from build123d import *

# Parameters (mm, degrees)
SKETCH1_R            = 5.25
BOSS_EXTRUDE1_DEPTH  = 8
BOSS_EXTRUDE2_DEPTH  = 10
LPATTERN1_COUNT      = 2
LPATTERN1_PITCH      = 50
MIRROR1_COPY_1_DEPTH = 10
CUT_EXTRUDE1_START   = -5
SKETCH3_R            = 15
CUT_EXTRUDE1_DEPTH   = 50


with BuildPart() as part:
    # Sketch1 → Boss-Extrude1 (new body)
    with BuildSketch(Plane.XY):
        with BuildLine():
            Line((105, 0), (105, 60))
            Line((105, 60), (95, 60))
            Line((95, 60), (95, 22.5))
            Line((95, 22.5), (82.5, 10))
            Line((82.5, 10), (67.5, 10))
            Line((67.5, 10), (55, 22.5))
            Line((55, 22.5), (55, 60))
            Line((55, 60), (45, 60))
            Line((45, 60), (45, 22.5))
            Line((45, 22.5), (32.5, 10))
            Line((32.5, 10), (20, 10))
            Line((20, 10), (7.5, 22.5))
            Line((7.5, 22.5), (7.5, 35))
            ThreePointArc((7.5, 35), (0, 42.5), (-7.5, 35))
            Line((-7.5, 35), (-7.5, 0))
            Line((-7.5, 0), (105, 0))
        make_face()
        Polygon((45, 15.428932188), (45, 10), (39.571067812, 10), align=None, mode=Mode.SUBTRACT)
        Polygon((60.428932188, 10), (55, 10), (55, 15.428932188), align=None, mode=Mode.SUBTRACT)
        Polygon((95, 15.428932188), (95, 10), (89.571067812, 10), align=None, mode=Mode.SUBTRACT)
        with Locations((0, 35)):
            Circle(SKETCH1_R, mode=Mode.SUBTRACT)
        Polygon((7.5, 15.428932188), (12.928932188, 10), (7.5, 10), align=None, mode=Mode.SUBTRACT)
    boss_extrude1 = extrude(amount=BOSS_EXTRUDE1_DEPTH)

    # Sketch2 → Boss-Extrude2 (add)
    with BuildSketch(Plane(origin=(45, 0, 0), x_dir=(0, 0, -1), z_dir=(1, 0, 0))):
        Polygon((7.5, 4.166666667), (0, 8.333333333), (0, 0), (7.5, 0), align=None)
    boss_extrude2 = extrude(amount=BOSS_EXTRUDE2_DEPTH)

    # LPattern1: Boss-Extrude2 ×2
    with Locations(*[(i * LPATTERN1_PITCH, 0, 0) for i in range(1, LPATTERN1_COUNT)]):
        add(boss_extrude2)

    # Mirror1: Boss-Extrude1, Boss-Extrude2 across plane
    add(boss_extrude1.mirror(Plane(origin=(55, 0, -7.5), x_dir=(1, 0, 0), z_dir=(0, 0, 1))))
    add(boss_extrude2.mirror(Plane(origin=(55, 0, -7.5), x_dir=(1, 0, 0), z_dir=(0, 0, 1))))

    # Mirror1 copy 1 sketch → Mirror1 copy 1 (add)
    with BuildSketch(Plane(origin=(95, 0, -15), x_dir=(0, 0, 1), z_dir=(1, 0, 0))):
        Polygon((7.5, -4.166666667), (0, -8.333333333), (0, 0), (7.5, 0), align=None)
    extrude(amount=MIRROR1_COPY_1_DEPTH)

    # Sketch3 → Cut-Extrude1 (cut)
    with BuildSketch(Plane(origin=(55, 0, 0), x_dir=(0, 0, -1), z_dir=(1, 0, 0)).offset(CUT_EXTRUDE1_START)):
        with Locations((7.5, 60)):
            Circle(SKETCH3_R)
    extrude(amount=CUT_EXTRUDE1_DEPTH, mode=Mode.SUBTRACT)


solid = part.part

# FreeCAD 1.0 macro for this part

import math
import FreeCAD as App
import Part
import Sketcher

V = App.Vector


def add_polygon(sketch, points):
    """Adds a closed chain of lines whose ends are joined by coincident constraints."""
    first, n = sketch.GeometryCount, len(points)
    for a, b in zip(points, points[1:] + points[:1]):
        sketch.addGeometry(Part.LineSegment(App.Vector(*a, 0), App.Vector(*b, 0)), False)
    for i in range(n):
        sketch.addConstraint(Sketcher.Constraint("Coincident", first + i, 2, first + (i + 1) % n, 1))

doc = App.newDocument("Part")
body = doc.addObject("PartDesign::Body", "Body")

# Sketch on XY plane
sketch1 = body.newObject("Sketcher::SketchObject", "Sketch")
sketch1.AttachmentSupport = (doc.getObject("XY_Plane"), [""])
sketch1.MapMode = "FlatFace"
sketch1.addGeometry(Part.LineSegment(V(105, 0, 0), V(105, 60, 0)), False)  # 0
sketch1.addGeometry(Part.LineSegment(V(105, 60, 0), V(95, 60, 0)), False)  # 1
sketch1.addGeometry(Part.LineSegment(V(95, 60, 0), V(95, 22, 0)), False)  # 2
sketch1.addGeometry(Part.LineSegment(V(95, 22, 0), V(82, 10, 0)), False)  # 3
sketch1.addGeometry(Part.LineSegment(V(82, 10, 0), V(68, 10, 0)), False)  # 4
sketch1.addGeometry(Part.LineSegment(V(68, 10, 0), V(55, 22, 0)), False)  # 5
sketch1.addGeometry(Part.LineSegment(V(55, 22, 0), V(55, 60, 0)), False)  # 6
sketch1.addGeometry(Part.LineSegment(V(55, 60, 0), V(45, 60, 0)), False)  # 7
sketch1.addGeometry(Part.LineSegment(V(45, 60, 0), V(45, 22, 0)), False)  # 8
sketch1.addGeometry(Part.LineSegment(V(45, 22, 0), V(32, 10, 0)), False)  # 9
sketch1.addGeometry(Part.LineSegment(V(32, 10, 0), V(20, 10, 0)), False)  # 10
sketch1.addGeometry(Part.LineSegment(V(20, 10, 0), V(8, 22, 0)), False)  # 11
sketch1.addGeometry(Part.LineSegment(V(8, 22, 0), V(8, 35, 0)), False)  # 12
sketch1.addGeometry(Part.ArcOfCircle(Part.Circle(V(0, 35, 0), V(0, 0, 1), 8), math.radians(0), math.radians(180)), False)  # 13
sketch1.addGeometry(Part.LineSegment(V(-8, 35, 0), V(-8, 0, 0)), False)  # 14
sketch1.addGeometry(Part.LineSegment(V(-8, 0, 0), V(105, 0, 0)), False)  # 15
add_polygon(sketch1, [(8, 10), (8, 15), (13, 10)])  # lines 16-18
add_polygon(sketch1, [(40, 10), (45, 15), (45, 10)])  # lines 19-21
add_polygon(sketch1, [(55, 15), (60, 10), (55, 10)])  # lines 22-24
add_polygon(sketch1, [(90, 10), (95, 15), (95, 10)])  # lines 25-27
sketch1.addGeometry(Part.Circle(V(0, 35, 0), V(0, 0, 1), 5), False)  # 28
sketch1.addConstraint(Sketcher.Constraint("Coincident", 0, 2, 1, 1))
sketch1.addConstraint(Sketcher.Constraint("Coincident", 1, 2, 2, 1))
sketch1.addConstraint(Sketcher.Constraint("Coincident", 2, 2, 3, 1))
sketch1.addConstraint(Sketcher.Constraint("Coincident", 3, 2, 4, 1))
sketch1.addConstraint(Sketcher.Constraint("Coincident", 4, 2, 5, 1))
sketch1.addConstraint(Sketcher.Constraint("Coincident", 5, 2, 6, 1))
sketch1.addConstraint(Sketcher.Constraint("Coincident", 6, 2, 7, 1))
sketch1.addConstraint(Sketcher.Constraint("Coincident", 7, 2, 8, 1))
sketch1.addConstraint(Sketcher.Constraint("Coincident", 8, 2, 9, 1))
sketch1.addConstraint(Sketcher.Constraint("Coincident", 9, 2, 10, 1))
sketch1.addConstraint(Sketcher.Constraint("Coincident", 10, 2, 11, 1))
sketch1.addConstraint(Sketcher.Constraint("Coincident", 11, 2, 12, 1))
sketch1.addConstraint(Sketcher.Constraint("Tangent", 12, 2, 13, 1))
sketch1.addConstraint(Sketcher.Constraint("Tangent", 13, 2, 14, 1))
sketch1.addConstraint(Sketcher.Constraint("Coincident", 14, 2, 15, 1))
sketch1.addConstraint(Sketcher.Constraint("Coincident", 15, 2, 0, 1))
sketch1.addConstraint(Sketcher.Constraint("Vertical", 0))
sketch1.addConstraint(Sketcher.Constraint("Horizontal", 1))
sketch1.addConstraint(Sketcher.Constraint("Vertical", 2))
sketch1.addConstraint(Sketcher.Constraint("Horizontal", 4))
sketch1.addConstraint(Sketcher.Constraint("Vertical", 6))
sketch1.addConstraint(Sketcher.Constraint("Horizontal", 7))
sketch1.addConstraint(Sketcher.Constraint("Vertical", 8))
sketch1.addConstraint(Sketcher.Constraint("Horizontal", 10))
sketch1.addConstraint(Sketcher.Constraint("Vertical", 12))
sketch1.addConstraint(Sketcher.Constraint("Vertical", 14))
sketch1.addConstraint(Sketcher.Constraint("Horizontal", 15))
sketch1.addConstraint(Sketcher.Constraint("Vertical", 16))
sketch1.addConstraint(Sketcher.Constraint("Horizontal", 18))
sketch1.addConstraint(Sketcher.Constraint("Vertical", 20))
sketch1.addConstraint(Sketcher.Constraint("Horizontal", 21))
sketch1.addConstraint(Sketcher.Constraint("Horizontal", 23))
sketch1.addConstraint(Sketcher.Constraint("Vertical", 24))
sketch1.addConstraint(Sketcher.Constraint("Vertical", 26))
sketch1.addConstraint(Sketcher.Constraint("Horizontal", 27))
sketch1.addConstraint(Sketcher.Constraint("Coincident", 28, 3, 13, 3))
sketch1.addConstraint(Sketcher.Constraint("PointOnObject", 13, 3, -2))
sketch1.addConstraint(Sketcher.Constraint("PointOnObject", 14, 2, -1))
sketch1.addConstraint(Sketcher.Constraint("Perpendicular", 3, 5))
sketch1.addConstraint(Sketcher.Constraint("Perpendicular", 5, 9))
sketch1.addConstraint(Sketcher.Constraint("Perpendicular", 9, 11))
sketch1.addConstraint(Sketcher.Constraint("Parallel", 11, 17))
sketch1.addConstraint(Sketcher.Constraint("Perpendicular", 17, 19))
sketch1.addConstraint(Sketcher.Constraint("Perpendicular", 19, 22))
sketch1.addConstraint(Sketcher.Constraint("Perpendicular", 22, 25))
sketch1.addConstraint(Sketcher.Constraint("Horizontal", 2, 2, 5, 2))
sketch1.addConstraint(Sketcher.Constraint("Horizontal", 1, 2, 6, 2))
sketch1.addConstraint(Sketcher.Constraint("Horizontal", 5, 2, 8, 2))
sketch1.addConstraint(Sketcher.Constraint("Horizontal", 4, 2, 9, 2))
sketch1.addConstraint(Sketcher.Constraint("Horizontal", 8, 2, 11, 2))
sketch1.addConstraint(Sketcher.Constraint("Horizontal", 10, 2, 17, 2))
sketch1.addConstraint(Sketcher.Constraint("Horizontal", 16, 2, 19, 2))
sketch1.addConstraint(Sketcher.Constraint("Horizontal", 18, 2, 20, 2))
sketch1.addConstraint(Sketcher.Constraint("Horizontal", 21, 2, 22, 2))
sketch1.addConstraint(Sketcher.Constraint("Horizontal", 19, 2, 24, 2))
sketch1.addConstraint(Sketcher.Constraint("Horizontal", 24, 2, 25, 2))
sketch1.addConstraint(Sketcher.Constraint("Horizontal", 23, 2, 26, 2))
sketch1.addConstraint(Sketcher.Constraint("Vertical", 12, 2, 16, 2))
sketch1.addConstraint(Sketcher.Constraint("Vertical", 8, 2, 19, 2))
sketch1.addConstraint(Sketcher.Constraint("Vertical", 6, 2, 23, 2))
sketch1.addConstraint(Sketcher.Constraint("Vertical", 2, 2, 25, 2))
sketch1.addConstraint(Sketcher.Constraint("Equal", 1, 7))
sketch1.addConstraint(Sketcher.Constraint("Equal", 18, 21))
sketch1.addConstraint(Sketcher.Constraint("Equal", 10, 12))
sketch1.addConstraint(Sketcher.Constraint("Diameter", 28, 10.5))
sketch1.addConstraint(Sketcher.Constraint("Radius", 13, 7.5))
sketch1.addConstraint(Sketcher.Constraint("DistanceX", 1, 2, 1, 1, 10.0))
sketch1.addConstraint(Sketcher.Constraint("DistanceX", 4, 2, 4, 1, 15.0))
sketch1.addConstraint(Sketcher.Constraint("DistanceY", 0, 1, 0, 2, 60.0))
sketch1.addConstraint(Sketcher.Constraint("DistanceY", 14, 2, 14, 1, 35.0))
sketch1.addConstraint(Sketcher.Constraint("DistanceX", 10, 2, 10, 1, 12.5))
sketch1.addConstraint(Sketcher.Constraint("DistanceX", 15, 1, 15, 2, 112.5))
sketch1.addConstraint(Sketcher.Constraint("Distance", 17, 7.67767))
pad1 = body.newObject("PartDesign::Pad", "Pad")
pad1.Profile = sketch1
pad1.Length = 8

# Sketch on YZ plane
sketch2 = body.newObject("Sketcher::SketchObject", "Sketch001")
sketch2.AttachmentSupport = (doc.getObject("YZ_Plane"), [""])
sketch2.MapMode = "FlatFace"
sketch2.AttachmentOffset = App.Placement(V(0, 0, 45), App.Rotation())
add_polygon(sketch2, [(4.2, -7.5), (8.3, 0), (0, 0), (0, -7.5)])  # lines 0-3
sketch2.addConstraint(Sketcher.Constraint("Horizontal", 1))
sketch2.addConstraint(Sketcher.Constraint("Vertical", 2))
sketch2.addConstraint(Sketcher.Constraint("Horizontal", 3))
sketch2.addConstraint(Sketcher.Constraint("Coincident", 1, 2, -1, 1))
sketch2.addConstraint(Sketcher.Constraint("DistanceY", 2, 2, 2, 1, 7.5))
sketch2.addConstraint(Sketcher.Constraint("Distance", 0, 8.579692))
sketch2.addConstraint(Sketcher.Constraint("DistanceX", 1, 2, 1, 1, 8.333333))
pad2 = body.newObject("PartDesign::Pad", "Pad001")
pad2.Profile = sketch2
pad2.Length = 10
doc.recompute()

linearpattern = body.newObject("PartDesign::LinearPattern", "LinearPattern")
linearpattern.Originals = [pad2]
linearpattern.Direction = (doc.getObject("X_Axis"), [""])
linearpattern.Mode = "offset"
linearpattern.Offset = 50
linearpattern.Occurrences = 2
body.Tip = linearpattern
doc.recompute()

datumplane = body.newObject("PartDesign::Plane", "DatumPlane")
datumplane.AttachmentSupport = (doc.getObject("XY_Plane"), [""])
datumplane.MapMode = "FlatFace"
datumplane.AttachmentOffset = App.Placement(V(0, 0, -7.5), App.Rotation())
mirrored = body.newObject("PartDesign::Mirrored", "Mirrored")
mirrored.Originals = [pad1, pad2]
mirrored.MirrorPlane = (datumplane, [""])
body.Tip = mirrored

# Sketch on YZ plane
sketch3 = body.newObject("Sketcher::SketchObject", "Sketch002")
sketch3.AttachmentSupport = (doc.getObject("YZ_Plane"), [""])
sketch3.MapMode = "FlatFace"
sketch3.AttachmentOffset = App.Placement(V(0, 0, 95), App.Rotation())
add_polygon(sketch3, [(8.3, -15), (4.2, -7.5), (0, -7.5), (0, -15)])  # lines 0-3
sketch3.addConstraint(Sketcher.Constraint("Horizontal", 1))
sketch3.addConstraint(Sketcher.Constraint("Vertical", 2))
sketch3.addConstraint(Sketcher.Constraint("Horizontal", 3))
sketch3.addConstraint(Sketcher.Constraint("PointOnObject", 1, 2, -2))
sketch3.addConstraint(Sketcher.Constraint("DistanceY", 2, 2, 2, 1, 7.5))
sketch3.addConstraint(Sketcher.Constraint("DistanceY", 2, 2, -1, 1, 15.0))
sketch3.addConstraint(Sketcher.Constraint("Distance", 0, 8.579692))
sketch3.addConstraint(Sketcher.Constraint("DistanceX", 1, 2, 1, 1, 4.166667))
pad3 = body.newObject("PartDesign::Pad", "Pad002")
pad3.Profile = sketch3
pad3.Length = 10

# Sketch on YZ plane
sketch4 = body.newObject("Sketcher::SketchObject", "Sketch003")
sketch4.AttachmentSupport = (doc.getObject("YZ_Plane"), [""])
sketch4.MapMode = "FlatFace"
sketch4.AttachmentOffset = App.Placement(V(0, 0, 50), App.Rotation())
sketch4.addGeometry(Part.Circle(V(60, -8, 0), V(0, 0, 1), 15), False)
sketch4.addConstraint(Sketcher.Constraint("Diameter", 0, 30.0))
sketch4.addConstraint(Sketcher.Constraint("DistanceX", -1, 1, 0, 3, 60.0))
sketch4.addConstraint(Sketcher.Constraint("DistanceY", 0, 3, -1, 1, 7.5))
pocket1 = body.newObject("PartDesign::Pocket", "Pocket")
pocket1.Profile = sketch4
pocket1.Length = 50
pocket1.Reversed = True

doc.recompute()
